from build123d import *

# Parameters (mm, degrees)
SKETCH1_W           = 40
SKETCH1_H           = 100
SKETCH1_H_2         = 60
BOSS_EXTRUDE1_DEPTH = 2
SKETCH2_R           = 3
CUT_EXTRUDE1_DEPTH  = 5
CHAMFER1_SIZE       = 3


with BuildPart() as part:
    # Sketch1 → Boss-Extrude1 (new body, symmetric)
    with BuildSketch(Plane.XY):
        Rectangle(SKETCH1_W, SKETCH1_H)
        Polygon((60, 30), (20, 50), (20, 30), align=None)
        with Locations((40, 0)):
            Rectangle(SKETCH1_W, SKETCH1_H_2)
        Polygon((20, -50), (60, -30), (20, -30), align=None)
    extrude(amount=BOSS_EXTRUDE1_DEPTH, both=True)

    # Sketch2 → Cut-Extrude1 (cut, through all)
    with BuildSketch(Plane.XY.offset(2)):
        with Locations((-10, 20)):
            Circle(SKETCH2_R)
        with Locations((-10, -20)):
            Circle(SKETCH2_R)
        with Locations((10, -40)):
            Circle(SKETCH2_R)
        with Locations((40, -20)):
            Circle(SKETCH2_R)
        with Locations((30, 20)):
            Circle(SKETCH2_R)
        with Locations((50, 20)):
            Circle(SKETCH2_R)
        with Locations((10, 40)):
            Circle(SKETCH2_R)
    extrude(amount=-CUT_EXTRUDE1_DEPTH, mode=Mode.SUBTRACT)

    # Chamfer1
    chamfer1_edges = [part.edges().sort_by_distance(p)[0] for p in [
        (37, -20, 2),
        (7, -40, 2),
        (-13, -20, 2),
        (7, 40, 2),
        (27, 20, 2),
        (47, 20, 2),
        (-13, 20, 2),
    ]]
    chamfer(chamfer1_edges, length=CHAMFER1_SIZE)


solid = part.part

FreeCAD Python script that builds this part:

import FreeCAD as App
import Part
import Sketcher
from FreeCAD import Vector
Q = App.Units.Quantity


def edges_at(feature, points):
    """Names of the edges that pass closest to the given points."""
    edges = feature.Shape.Edges
    near = lambda p: min(range(len(edges)), key=lambda i: edges[i].distToShape(Part.Vertex(*p))[0])
    return sorted({f"Edge{near(p) + 1}" for p in points})


def add_polygon(sketch, points):
    """Adds a closed chain of lines whose ends are joined by coincident constraints."""
    first, n = sketch.GeometryCount, len(points)
    for a, b in zip(points, points[1:] + points[:1]):
        sketch.addGeometry(Part.LineSegment(App.Vector(*a, 0), App.Vector(*b, 0)), False)
    for i in range(n):
        sketch.addConstraint(Sketcher.Constraint("Coincident", first + i, 2, first + (i + 1) % n, 1))

doc = App.newDocument("Part")
params = doc.addObject("Spreadsheet::Sheet", "Params")
for row, (alias, value) in enumerate([
    ("sketch1_width", "40 mm"),
    ("sketch1_height", "100 mm"),
    ("sketch1_height2", "60 mm"),
    ("pad1_length", "4 mm"),
    ("sketch2_diameter", "6 mm"),
    ("chamfer_size", "3 mm"),
], start=1):
    params.set(f"A{row}", alias)
    params.set(f"B{row}", "=" + value)
    params.setAlias(f"B{row}", alias)

body = doc.addObject("PartDesign::Body", "Body")

# Sketch on XY plane
sketch1 = doc.addObject("Sketcher::SketchObject", "Sketch")
body.addObject(sketch1)
sketch1.AttachmentSupport = (doc.XY_Plane, [""])
sketch1.MapMode = "FlatFace"
add_polygon(sketch1, [(-20, 50), (-20, -50), (20, -50), (60, -30), (60, 30), (20, 50)])  # lines 0-5
sketch1.addConstraint([
    Sketcher.Constraint("Vertical", 0),
    Sketcher.Constraint("Horizontal", 1),
    Sketcher.Constraint("Vertical", 3),
    Sketcher.Constraint("Horizontal", 5),
    Sketcher.Constraint("Symmetric", 0, 2, 4, 2, -1, 1),
    Sketcher.Constraint("Vertical", 1, 2, 4, 2),
    Sketcher.Constraint("Equal", 2, 4),
    Sketcher.Constraint("DistanceX", 1, 1, 1, 2, Q("40 mm")),
    Sketcher.Constraint("DistanceY", 0, 2, 0, 1, Q("100 mm")),
    Sketcher.Constraint("DistanceY", 3, 1, 3, 2, Q("60 mm")),
    Sketcher.Constraint("DistanceX", -1, 1, 2, 2, Q("60 mm")),
])
sketch1.setExpression("Constraints[13]", "Params.sketch1_width")
sketch1.setExpression("Constraints[14]", "Params.sketch1_height")
sketch1.setExpression("Constraints[15]", "Params.sketch1_height2")
pad1 = doc.addObject("PartDesign::Pad", "Pad")
body.addObject(pad1)
pad1.Profile = sketch1
pad1.setExpression("Length", "Params.pad1_length")
pad1.Midplane = True

# Sketch on XY plane
sketch2 = doc.addObject("Sketcher::SketchObject", "Sketch001")
body.addObject(sketch2)
sketch2.AttachmentSupport = (doc.XY_Plane, [""])
sketch2.MapMode = "FlatFace"
sketch2.AttachmentOffset = App.Placement(Vector(0, 0, 2), App.Rotation())
sketch2.addGeometry([
    Part.Circle(Vector(-10, 20, 0), Vector(0, 0, 1), 3),  # 0
    Part.Circle(Vector(-10, -20, 0), Vector(0, 0, 1), 3),  # 1
    Part.Circle(Vector(10, -40, 0), Vector(0, 0, 1), 3),  # 2
    Part.Circle(Vector(40, -20, 0), Vector(0, 0, 1), 3),  # 3
    Part.Circle(Vector(30, 20, 0), Vector(0, 0, 1), 3),  # 4
    Part.Circle(Vector(50, 20, 0), Vector(0, 0, 1), 3),  # 5
    Part.Circle(Vector(10, 40, 0), Vector(0, 0, 1), 3),  # 6
], False)
sketch2.addConstraint([
    Sketcher.Constraint("Equal", 0, 1),
    Sketcher.Constraint("Equal", 1, 2),
    Sketcher.Constraint("Equal", 2, 3),
    Sketcher.Constraint("Equal", 3, 4),
    Sketcher.Constraint("Equal", 4, 5),
    Sketcher.Constraint("Equal", 5, 6),
    Sketcher.Constraint("Symmetric", 0, 3, 1, 3, -1),
    Sketcher.Constraint("Symmetric", 2, 3, 6, 3, -1),
    Sketcher.Constraint("Horizontal", 1, 3, 3, 3),
    Sketcher.Constraint("Horizontal", 0, 3, 4, 3),
    Sketcher.Constraint("Horizontal", 4, 3, 5, 3),
    Sketcher.Constraint("Diameter", 0, Q("6 mm")),
    Sketcher.Constraint("DistanceX", 0, 3, -1, 1, Q("10 mm")),
    Sketcher.Constraint("DistanceY", -1, 1, 0, 3, Q("20 mm")),
    Sketcher.Constraint("DistanceX", -1, 1, 2, 3, Q("10 mm")),
    Sketcher.Constraint("DistanceY", 2, 3, -1, 1, Q("40 mm")),
    Sketcher.Constraint("DistanceX", -1, 1, 3, 3, Q("40 mm")),
    Sketcher.Constraint("DistanceX", -1, 1, 4, 3, Q("30 mm")),
    Sketcher.Constraint("DistanceX", -1, 1, 5, 3, Q("50 mm")),
])
sketch2.setExpression("Constraints[11]", "Params.sketch2_diameter")
pocket1 = doc.addObject("PartDesign::Pocket", "Pocket")
body.addObject(pocket1)
pocket1.Profile = sketch2
pocket1.Type = "ThroughAll"
doc.recompute()

chamfer = doc.addObject("PartDesign::Chamfer", "Chamfer")
body.addObject(chamfer)
chamfer.Base = (pocket1, edges_at(pocket1, [
    (37, -20, 2),
    (7, -40, 2),
    (-13, -20, 2),
    (7, 40, 2),
    (27, 20, 2),
    (47, 20, 2),
    (-13, 20, 2),
]))
chamfer.setExpression("Size", "Params.chamfer_size")

doc.recompute()
